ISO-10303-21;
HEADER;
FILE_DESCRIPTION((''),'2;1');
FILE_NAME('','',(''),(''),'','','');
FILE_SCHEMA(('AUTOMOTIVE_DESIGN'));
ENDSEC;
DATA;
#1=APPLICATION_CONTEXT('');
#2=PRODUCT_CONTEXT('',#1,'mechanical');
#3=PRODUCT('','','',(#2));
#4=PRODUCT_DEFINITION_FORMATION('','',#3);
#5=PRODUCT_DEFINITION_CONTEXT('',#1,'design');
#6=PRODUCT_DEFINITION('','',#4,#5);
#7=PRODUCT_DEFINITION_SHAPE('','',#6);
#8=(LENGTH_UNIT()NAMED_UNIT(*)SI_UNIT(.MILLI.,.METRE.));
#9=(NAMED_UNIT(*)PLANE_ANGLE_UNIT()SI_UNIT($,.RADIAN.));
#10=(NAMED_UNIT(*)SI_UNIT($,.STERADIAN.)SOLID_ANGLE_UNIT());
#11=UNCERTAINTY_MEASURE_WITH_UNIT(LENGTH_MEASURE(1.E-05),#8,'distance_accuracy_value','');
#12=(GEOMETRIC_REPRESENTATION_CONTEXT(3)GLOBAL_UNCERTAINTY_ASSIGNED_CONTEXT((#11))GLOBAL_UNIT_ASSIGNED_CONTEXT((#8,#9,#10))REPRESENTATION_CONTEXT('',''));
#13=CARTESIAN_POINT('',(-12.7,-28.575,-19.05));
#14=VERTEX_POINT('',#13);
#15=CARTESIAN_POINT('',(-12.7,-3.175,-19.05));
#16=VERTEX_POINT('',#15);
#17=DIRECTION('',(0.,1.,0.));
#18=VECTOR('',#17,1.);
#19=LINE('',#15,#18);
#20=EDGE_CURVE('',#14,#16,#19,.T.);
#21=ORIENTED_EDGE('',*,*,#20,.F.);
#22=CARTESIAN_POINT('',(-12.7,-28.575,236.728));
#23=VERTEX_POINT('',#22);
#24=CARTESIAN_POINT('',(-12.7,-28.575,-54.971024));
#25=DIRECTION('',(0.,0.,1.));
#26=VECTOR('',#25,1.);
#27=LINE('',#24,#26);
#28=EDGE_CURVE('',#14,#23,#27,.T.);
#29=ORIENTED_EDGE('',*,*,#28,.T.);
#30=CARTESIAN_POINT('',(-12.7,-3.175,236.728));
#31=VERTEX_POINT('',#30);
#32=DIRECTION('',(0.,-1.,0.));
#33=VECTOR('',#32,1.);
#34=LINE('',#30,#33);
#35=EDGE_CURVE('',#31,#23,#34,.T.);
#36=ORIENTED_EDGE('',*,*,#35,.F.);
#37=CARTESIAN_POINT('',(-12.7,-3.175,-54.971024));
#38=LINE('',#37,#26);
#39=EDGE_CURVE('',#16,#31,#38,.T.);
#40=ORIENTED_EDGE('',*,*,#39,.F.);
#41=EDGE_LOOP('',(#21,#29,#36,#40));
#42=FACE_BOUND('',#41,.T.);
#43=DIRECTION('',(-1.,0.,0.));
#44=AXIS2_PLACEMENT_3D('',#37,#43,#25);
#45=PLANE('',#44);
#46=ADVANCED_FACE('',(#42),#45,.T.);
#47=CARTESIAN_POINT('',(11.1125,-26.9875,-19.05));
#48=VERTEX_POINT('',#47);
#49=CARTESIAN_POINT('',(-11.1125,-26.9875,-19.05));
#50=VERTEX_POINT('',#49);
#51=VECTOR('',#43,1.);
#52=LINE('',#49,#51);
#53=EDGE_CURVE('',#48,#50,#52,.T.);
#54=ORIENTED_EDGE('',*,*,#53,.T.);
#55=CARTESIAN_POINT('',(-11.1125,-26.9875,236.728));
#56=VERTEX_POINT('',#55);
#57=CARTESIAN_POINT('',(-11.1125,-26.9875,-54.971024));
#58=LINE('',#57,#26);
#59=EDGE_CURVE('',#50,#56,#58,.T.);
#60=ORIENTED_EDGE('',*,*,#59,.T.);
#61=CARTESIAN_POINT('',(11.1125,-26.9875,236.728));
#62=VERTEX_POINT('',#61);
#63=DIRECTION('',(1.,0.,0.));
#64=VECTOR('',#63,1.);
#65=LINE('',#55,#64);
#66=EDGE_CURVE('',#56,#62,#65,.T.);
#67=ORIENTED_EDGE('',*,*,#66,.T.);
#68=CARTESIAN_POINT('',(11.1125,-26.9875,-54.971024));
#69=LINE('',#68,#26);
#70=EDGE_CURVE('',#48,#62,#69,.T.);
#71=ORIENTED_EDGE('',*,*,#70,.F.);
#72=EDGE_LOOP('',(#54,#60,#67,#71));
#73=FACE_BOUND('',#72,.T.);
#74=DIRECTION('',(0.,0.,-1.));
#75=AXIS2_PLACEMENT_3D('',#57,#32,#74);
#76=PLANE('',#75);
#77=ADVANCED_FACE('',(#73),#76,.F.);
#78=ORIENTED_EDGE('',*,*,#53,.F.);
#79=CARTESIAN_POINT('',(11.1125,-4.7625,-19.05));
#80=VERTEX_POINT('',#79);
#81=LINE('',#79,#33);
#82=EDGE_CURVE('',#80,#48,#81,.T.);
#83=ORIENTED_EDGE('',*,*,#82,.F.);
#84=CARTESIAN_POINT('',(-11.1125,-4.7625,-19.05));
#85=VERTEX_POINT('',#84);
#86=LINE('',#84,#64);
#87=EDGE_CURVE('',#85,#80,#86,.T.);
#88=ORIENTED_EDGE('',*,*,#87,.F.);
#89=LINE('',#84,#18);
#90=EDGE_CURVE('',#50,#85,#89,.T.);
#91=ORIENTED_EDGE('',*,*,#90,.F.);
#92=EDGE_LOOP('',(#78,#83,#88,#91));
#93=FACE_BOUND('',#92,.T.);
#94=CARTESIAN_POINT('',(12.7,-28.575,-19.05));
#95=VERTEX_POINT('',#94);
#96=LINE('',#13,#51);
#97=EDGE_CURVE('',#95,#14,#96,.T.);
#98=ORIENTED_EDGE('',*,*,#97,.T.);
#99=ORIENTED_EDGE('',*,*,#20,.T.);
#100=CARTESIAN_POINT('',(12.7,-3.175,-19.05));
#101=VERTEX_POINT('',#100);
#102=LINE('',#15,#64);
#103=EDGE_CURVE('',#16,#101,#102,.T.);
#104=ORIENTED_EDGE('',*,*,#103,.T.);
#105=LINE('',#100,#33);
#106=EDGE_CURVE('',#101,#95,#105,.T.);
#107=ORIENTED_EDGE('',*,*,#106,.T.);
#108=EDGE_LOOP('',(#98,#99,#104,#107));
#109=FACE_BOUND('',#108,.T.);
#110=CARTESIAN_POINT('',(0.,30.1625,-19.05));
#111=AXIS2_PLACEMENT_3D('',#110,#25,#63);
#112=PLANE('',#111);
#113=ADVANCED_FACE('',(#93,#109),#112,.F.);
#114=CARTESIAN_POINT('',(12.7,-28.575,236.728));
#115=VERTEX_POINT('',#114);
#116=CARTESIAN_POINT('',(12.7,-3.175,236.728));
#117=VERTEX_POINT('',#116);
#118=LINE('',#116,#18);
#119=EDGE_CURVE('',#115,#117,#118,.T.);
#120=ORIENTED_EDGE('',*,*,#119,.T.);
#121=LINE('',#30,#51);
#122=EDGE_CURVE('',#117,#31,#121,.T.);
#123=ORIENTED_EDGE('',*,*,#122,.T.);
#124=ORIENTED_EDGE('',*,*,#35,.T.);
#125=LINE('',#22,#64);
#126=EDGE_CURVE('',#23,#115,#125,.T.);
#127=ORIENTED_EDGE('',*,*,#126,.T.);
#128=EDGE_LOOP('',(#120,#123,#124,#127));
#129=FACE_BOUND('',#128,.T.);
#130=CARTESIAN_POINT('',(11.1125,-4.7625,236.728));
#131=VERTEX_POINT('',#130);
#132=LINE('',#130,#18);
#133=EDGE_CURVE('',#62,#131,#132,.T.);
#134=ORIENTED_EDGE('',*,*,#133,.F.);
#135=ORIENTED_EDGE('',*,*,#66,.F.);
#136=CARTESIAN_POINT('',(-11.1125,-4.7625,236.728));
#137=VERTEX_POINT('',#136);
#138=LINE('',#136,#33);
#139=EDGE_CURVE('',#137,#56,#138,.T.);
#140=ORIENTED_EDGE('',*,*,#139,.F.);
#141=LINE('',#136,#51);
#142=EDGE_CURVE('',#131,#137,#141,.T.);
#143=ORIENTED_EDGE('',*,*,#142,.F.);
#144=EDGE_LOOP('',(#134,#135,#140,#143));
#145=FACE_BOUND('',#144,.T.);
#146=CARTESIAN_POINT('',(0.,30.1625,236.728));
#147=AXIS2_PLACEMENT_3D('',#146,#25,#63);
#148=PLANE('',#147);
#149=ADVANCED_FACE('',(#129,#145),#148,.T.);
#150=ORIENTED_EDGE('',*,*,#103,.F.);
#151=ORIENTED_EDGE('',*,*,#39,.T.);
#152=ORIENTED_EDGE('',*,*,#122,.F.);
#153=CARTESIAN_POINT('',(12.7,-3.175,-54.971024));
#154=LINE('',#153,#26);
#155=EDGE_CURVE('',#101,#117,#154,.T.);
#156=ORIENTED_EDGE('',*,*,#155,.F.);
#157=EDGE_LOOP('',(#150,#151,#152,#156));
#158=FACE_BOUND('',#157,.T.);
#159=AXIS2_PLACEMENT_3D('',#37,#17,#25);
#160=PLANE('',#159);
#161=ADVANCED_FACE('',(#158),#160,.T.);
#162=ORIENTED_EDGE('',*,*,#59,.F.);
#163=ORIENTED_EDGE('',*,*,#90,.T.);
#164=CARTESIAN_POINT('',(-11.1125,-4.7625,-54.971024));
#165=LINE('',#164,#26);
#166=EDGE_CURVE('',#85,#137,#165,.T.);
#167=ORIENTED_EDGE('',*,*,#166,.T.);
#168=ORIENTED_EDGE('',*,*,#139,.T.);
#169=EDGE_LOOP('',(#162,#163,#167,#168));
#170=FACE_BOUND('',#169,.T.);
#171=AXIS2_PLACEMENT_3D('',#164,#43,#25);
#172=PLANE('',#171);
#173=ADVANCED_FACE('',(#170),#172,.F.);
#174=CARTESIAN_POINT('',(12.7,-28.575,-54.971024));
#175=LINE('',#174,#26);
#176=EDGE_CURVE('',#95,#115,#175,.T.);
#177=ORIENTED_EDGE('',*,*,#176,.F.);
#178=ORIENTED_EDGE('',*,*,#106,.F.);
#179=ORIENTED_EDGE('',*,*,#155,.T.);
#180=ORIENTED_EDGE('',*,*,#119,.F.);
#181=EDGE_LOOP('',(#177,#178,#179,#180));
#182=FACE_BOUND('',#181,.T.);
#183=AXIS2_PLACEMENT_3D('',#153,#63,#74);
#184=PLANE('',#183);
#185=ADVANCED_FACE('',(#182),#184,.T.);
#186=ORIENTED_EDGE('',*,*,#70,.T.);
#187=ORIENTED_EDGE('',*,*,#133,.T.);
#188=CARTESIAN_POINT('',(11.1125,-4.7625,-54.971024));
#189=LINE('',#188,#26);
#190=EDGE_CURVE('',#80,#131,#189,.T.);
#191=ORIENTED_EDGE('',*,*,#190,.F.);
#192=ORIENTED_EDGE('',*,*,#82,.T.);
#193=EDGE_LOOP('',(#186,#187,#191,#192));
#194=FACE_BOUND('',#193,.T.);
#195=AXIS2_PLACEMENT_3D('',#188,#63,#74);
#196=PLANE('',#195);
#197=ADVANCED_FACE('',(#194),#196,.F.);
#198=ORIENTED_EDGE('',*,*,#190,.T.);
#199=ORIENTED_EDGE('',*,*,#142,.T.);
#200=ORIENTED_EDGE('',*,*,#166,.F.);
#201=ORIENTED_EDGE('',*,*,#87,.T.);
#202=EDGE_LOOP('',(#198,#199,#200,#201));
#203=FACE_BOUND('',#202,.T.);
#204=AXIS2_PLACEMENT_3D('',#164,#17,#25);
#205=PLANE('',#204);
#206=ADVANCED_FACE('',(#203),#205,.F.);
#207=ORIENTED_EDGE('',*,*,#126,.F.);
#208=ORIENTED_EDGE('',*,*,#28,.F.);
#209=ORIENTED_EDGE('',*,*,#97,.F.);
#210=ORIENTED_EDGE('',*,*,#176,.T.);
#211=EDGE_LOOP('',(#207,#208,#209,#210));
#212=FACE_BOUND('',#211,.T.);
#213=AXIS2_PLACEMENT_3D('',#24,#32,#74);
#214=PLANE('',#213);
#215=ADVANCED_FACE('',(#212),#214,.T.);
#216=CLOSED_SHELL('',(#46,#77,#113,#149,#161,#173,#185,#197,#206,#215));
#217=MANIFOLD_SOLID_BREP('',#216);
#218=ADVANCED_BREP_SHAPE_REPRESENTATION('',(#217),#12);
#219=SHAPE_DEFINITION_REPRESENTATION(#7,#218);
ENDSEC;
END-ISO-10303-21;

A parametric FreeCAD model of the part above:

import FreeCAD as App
import Part
import Sketcher
from FreeCAD import Vector
Q = App.Units.Quantity


def add_polygon(sketch, points):
    """Adds a closed chain of lines whose ends are joined by coincident constraints."""
    first, n = sketch.GeometryCount, len(points)
    for a, b in zip(points, points[1:] + points[:1]):
        sketch.addGeometry(Part.LineSegment(App.Vector(*a, 0), App.Vector(*b, 0)), False)
    for i in range(n):
        sketch.addConstraint(Sketcher.Constraint("Coincident", first + i, 2, first + (i + 1) % n, 1))

doc = App.newDocument("Part")
body = doc.addObject("PartDesign::Body", "Body")

sketch1 = body.newObject("Sketcher::SketchObject", "Sketch")
sketch1.AttachmentSupport = (doc.getObject("XY_Plane"), [""])
sketch1.MapMode = "FlatFace"
add_polygon(sketch1, [(-13, -3), (-13, -29), (13, -29), (13, -3)])
add_polygon(sketch1, [(11, -27), (-11, -27), (-11, -5), (11, -5)])
sketch1.addConstraint([
    Sketcher.Constraint("Vertical", 0),
    Sketcher.Constraint("Horizontal", 1),
    Sketcher.Constraint("Vertical", 2),
    Sketcher.Constraint("Horizontal", 3),
    Sketcher.Constraint("Horizontal", 4),
    Sketcher.Constraint("Vertical", 5),
    Sketcher.Constraint("Horizontal", 6),
    Sketcher.Constraint("Vertical", 7),
    Sketcher.Constraint("Equal", 3, 0),
    Sketcher.Constraint("Equal", 6, 5),
    Sketcher.Constraint("DistanceX", 1, 1, 1, 2, Q("1 in")),
    Sketcher.Constraint("DistanceX", 0, 2, -1, 1, Q("0.5 in")),
    Sketcher.Constraint("DistanceX", 4, 2, 4, 1, Q("0.875 in")),
    Sketcher.Constraint("DistanceY", 0, 2, -1, 1, Q("1.125 in")),
    Sketcher.Constraint("DistanceX", 4, 2, -1, 1, Q("0.4375 in")),
    Sketcher.Constraint("DistanceY", 4, 2, -1, 1, Q("1.0625 in")),
])
pad1 = body.newObject("PartDesign::Pad", "Pad")
pad1.Profile = sketch1
pad1.Type = "TwoLengths"
pad1.Length = Q("9.32 in")
pad1.Length2 = Q("0.75 in")

doc.recompute()
